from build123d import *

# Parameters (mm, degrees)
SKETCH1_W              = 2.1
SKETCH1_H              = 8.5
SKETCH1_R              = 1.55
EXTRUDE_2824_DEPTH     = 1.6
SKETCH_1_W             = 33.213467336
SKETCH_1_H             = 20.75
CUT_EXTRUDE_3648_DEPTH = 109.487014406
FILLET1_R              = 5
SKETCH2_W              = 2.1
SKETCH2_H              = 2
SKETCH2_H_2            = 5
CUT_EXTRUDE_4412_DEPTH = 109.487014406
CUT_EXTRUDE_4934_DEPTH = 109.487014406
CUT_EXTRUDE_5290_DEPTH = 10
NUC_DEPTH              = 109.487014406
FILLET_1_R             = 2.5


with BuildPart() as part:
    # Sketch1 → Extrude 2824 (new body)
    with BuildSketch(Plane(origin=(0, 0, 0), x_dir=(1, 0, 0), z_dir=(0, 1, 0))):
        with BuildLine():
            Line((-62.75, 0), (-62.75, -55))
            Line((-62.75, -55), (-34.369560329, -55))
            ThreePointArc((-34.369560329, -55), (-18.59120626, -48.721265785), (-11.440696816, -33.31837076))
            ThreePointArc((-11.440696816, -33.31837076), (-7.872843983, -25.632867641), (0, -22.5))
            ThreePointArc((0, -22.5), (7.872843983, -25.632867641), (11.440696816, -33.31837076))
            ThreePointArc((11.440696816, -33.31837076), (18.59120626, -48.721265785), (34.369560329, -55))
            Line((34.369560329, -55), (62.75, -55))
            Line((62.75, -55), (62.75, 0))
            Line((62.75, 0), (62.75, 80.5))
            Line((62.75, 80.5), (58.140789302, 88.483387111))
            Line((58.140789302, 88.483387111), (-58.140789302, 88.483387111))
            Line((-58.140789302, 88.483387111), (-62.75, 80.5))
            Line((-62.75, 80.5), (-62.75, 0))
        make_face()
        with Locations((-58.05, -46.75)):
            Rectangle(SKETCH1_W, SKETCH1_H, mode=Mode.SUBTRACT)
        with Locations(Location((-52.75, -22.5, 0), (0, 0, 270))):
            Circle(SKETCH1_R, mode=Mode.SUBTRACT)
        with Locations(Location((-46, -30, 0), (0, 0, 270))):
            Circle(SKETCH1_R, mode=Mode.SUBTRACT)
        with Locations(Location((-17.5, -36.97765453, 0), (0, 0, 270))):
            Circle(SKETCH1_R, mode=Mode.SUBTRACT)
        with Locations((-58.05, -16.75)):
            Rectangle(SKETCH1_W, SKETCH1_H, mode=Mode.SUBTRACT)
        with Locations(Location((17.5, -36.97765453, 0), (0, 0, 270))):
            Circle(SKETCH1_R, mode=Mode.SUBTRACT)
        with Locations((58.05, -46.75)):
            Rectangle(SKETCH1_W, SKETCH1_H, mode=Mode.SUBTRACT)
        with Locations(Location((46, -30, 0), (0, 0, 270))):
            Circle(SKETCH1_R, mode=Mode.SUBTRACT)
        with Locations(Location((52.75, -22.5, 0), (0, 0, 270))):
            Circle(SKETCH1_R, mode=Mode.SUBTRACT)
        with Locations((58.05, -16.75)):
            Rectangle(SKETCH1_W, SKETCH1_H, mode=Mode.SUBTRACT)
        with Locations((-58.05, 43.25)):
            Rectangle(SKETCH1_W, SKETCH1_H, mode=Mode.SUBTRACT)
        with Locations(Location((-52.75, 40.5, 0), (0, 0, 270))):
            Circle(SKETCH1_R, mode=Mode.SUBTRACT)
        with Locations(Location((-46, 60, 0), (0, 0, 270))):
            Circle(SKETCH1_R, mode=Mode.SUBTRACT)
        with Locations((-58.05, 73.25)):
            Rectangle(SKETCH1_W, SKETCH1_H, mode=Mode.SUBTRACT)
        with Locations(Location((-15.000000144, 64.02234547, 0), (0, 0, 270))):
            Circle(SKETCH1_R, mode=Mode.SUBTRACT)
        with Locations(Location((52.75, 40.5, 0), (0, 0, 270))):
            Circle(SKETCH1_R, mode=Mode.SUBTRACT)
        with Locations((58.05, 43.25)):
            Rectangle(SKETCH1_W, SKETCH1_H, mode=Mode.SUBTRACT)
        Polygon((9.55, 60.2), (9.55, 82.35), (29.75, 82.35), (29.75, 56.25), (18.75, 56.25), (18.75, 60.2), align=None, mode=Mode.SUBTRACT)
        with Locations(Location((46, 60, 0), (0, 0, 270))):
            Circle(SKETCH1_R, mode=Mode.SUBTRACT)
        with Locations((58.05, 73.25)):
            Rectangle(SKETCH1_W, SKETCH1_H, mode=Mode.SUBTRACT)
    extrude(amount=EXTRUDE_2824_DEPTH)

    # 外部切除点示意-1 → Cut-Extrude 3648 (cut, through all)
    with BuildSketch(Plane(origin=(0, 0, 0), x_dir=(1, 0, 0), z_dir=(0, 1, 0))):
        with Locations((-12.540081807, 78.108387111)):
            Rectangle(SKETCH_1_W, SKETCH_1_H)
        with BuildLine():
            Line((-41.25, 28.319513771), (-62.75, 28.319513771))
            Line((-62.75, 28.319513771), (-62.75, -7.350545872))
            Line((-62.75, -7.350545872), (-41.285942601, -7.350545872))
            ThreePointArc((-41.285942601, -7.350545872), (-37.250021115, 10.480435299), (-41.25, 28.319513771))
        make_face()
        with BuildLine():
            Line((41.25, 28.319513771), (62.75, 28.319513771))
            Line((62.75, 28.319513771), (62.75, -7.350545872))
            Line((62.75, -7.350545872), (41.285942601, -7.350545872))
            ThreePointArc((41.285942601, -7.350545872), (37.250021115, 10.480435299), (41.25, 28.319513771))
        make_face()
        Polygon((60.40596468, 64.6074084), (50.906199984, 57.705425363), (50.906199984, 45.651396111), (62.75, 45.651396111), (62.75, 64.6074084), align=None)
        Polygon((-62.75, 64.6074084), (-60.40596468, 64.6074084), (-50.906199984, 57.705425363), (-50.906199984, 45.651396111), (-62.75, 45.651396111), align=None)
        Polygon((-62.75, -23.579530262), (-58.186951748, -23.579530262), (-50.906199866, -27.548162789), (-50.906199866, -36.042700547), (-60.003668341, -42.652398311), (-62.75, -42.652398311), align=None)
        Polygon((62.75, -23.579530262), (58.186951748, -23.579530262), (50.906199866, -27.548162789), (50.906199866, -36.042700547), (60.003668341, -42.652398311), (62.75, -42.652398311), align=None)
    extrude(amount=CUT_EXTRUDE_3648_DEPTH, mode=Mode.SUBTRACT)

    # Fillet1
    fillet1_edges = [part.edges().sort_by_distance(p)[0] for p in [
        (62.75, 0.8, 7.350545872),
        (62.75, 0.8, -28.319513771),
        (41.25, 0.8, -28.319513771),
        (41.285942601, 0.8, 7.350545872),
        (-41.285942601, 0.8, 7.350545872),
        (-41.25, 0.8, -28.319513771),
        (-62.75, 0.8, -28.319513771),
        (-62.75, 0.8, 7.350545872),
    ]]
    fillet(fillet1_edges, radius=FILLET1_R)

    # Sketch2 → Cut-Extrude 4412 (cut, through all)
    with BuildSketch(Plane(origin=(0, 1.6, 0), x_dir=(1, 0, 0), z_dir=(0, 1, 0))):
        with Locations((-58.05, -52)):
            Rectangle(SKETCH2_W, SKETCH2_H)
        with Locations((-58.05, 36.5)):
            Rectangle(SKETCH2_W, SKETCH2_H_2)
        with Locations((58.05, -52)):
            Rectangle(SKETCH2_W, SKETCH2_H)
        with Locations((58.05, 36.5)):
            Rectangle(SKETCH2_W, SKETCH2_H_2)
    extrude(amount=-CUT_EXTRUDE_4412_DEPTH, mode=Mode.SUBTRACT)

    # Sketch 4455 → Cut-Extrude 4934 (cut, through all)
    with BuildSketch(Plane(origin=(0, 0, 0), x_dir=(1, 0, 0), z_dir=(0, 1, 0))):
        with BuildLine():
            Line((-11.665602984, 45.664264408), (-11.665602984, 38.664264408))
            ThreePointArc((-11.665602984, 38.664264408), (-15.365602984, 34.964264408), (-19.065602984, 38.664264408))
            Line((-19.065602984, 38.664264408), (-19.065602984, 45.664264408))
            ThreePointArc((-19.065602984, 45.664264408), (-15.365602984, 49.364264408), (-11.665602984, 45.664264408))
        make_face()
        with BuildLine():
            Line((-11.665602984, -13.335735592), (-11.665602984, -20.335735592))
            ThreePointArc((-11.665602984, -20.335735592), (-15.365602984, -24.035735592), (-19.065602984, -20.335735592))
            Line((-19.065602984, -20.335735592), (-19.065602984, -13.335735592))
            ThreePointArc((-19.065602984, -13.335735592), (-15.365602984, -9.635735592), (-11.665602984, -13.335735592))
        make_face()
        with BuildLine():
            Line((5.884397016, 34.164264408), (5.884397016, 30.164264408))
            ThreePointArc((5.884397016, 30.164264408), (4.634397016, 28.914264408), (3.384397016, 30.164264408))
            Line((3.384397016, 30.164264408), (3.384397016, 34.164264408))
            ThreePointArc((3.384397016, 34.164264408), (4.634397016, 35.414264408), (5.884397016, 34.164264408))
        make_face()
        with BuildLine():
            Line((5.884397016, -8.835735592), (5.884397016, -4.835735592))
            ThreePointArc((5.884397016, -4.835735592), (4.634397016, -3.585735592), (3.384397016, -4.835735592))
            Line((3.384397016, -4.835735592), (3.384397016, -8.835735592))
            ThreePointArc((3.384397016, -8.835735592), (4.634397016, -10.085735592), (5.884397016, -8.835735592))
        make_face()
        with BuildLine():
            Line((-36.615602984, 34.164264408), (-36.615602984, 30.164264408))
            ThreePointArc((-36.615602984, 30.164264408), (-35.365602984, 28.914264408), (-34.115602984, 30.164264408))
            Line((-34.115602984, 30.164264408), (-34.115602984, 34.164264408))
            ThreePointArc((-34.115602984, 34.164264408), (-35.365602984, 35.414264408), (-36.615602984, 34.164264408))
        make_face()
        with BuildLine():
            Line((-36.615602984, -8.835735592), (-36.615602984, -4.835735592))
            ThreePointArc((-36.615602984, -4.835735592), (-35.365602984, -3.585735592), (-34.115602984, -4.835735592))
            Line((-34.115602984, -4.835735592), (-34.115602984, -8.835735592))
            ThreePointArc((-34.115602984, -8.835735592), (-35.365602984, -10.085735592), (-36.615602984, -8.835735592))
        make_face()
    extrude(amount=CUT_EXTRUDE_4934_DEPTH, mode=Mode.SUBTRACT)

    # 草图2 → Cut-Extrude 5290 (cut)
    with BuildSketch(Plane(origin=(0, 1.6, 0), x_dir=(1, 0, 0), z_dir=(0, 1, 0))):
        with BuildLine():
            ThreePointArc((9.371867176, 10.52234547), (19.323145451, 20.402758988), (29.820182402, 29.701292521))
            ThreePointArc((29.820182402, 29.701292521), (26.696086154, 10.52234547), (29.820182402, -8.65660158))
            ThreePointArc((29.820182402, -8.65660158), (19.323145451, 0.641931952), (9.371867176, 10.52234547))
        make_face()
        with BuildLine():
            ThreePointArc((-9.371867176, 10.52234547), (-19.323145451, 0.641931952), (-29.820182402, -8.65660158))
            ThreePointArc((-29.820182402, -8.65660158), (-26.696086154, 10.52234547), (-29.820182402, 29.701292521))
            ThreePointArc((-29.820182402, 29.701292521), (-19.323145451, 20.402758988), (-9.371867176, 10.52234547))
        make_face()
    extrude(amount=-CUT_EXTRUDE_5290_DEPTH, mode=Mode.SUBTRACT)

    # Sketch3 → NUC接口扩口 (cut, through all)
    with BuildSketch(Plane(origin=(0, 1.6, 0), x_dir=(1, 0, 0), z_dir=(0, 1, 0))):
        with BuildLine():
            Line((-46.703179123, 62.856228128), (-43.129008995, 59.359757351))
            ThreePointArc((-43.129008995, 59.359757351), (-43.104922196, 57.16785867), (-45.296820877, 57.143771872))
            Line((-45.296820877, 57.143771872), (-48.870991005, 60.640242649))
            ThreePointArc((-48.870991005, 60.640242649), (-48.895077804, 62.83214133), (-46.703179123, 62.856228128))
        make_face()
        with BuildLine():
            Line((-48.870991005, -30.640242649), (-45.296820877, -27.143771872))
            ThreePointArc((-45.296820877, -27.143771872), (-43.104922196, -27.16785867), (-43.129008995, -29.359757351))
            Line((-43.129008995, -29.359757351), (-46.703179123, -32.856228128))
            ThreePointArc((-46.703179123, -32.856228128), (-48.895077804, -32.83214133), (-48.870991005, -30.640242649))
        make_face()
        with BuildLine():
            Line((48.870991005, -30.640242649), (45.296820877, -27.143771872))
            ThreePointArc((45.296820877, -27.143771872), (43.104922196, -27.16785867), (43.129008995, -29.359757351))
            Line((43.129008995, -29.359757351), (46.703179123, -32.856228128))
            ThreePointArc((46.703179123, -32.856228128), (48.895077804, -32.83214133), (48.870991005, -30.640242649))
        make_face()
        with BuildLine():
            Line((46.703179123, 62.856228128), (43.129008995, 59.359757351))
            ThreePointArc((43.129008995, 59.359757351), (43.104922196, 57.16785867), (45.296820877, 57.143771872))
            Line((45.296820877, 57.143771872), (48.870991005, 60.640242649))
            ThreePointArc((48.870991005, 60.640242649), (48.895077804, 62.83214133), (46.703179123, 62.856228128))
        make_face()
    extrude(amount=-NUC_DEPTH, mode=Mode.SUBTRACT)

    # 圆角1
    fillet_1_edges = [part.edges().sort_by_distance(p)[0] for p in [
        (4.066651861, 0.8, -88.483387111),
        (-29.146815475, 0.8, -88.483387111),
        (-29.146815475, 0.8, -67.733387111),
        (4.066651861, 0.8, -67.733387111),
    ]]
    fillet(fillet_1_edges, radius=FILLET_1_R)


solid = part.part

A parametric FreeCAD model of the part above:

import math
import FreeCAD as App
import Part
import Sketcher
from FreeCAD import Vector
Q = App.Units.Quantity


def edges_at(feature, points):
    """Names of the edges that pass closest to the given points."""
    edges = feature.Shape.Edges
    near = lambda p: min(range(len(edges)), key=lambda i: edges[i].distToShape(Part.Vertex(*p))[0])
    return sorted({f"Edge{near(p) + 1}" for p in points})

doc = App.newDocument("Part")
params = doc.addObject("Spreadsheet::Sheet", "Params")
for row, (alias, value) in enumerate([
    ("sketch1_diameter", "3.1 mm"),
    ("sketch1_width", "11 mm"),
    ("sketch1_width2", "2.1 mm"),
    ("sketch1_width3", "9.2 mm"),
    ("sketch1_height", "135.5 mm"),
    ("pad1_length", "1.6 mm"),
    ("sketch2_width", "21.5 mm"),
    ("sketch2_height", "20.75 mm"),
    ("fillet_radius", "5 mm"),
    ("sketch3_height", "2 mm"),
    ("sketch3_height2", "5 mm"),
    ("sketch3_width", "2.1 mm"),
    ("sketch4_radius", "3.7 mm"),
    ("sketch4_height", "7 mm"),
    ("sketch4_height2", "4 mm"),
    ("sketch4_radius2", "1.25 mm"),
    ("pocket4_length", "10 mm"),
    ("sketch6_radius", "1.55 mm"),
    ("sketch6_length", "5 mm"),
    ("fillet2_radius", "2.5 mm"),
], start=1):
    params.set(f"A{row}", alias)
    params.set(f"B{row}", "=" + value)
    params.setAlias(f"B{row}", alias)

body = doc.addObject("PartDesign::Body", "Body")

# Sketch on XZ plane
sketch1 = body.newObject("Sketcher::SketchObject", "Sketch")
sketch1.AttachmentSupport = (doc.getObject("XZ_Plane"), [""])
sketch1.MapMode = "FlatFace"
sketch1.addGeometry([
    Part.LineSegment(Vector(-62.8, 55, 0), Vector(-34.4, 55, 0)),  # 0
    Part.ArcOfCircle(Part.Circle(Vector(-34.4, 32, 0), Vector(0, 0, 1), 23), math.radians(3), math.radians(90)),  # 1
    Part.ArcOfCircle(Part.Circle(Vector(0, 34, 0), Vector(0, 0, 1), 11.5), math.radians(-177), math.radians(-90)),  # 2
    Part.ArcOfCircle(Part.Circle(Vector(0, 34, 0), Vector(0, 0, 1), 11.5), math.radians(-90), math.radians(-3)),  # 3
    Part.ArcOfCircle(Part.Circle(Vector(34.4, 32, 0), Vector(0, 0, 1), 23), math.radians(90), math.radians(177)),  # 4
    Part.LineSegment(Vector(34.4, 55, 0), Vector(62.8, 55, 0)),  # 5
    Part.LineSegment(Vector(62.8, 55, 0), Vector(62.8, -80.5, 0)),  # 6
    Part.LineSegment(Vector(62.8, -80.5, 0), Vector(58.1, -88.5, 0)),  # 7
    Part.LineSegment(Vector(58.1, -88.5, 0), Vector(-58.1, -88.5, 0)),  # 8
    Part.LineSegment(Vector(-58.1, -88.5, 0), Vector(-62.8, -80.5, 0)),  # 9
    Part.LineSegment(Vector(-62.8, -80.5, 0), Vector(-62.8, 55, 0)),  # 10
    Part.LineSegment(Vector(-57, 51, 0), Vector(-59.1, 51, 0)),  # 11
    Part.LineSegment(Vector(-59.1, 51, 0), Vector(-59.1, 42.5, 0)),  # 12
    Part.LineSegment(Vector(-59.1, 42.5, 0), Vector(-57, 42.5, 0)),  # 13
    Part.LineSegment(Vector(-57, 42.5, 0), Vector(-57, 51, 0)),  # 14
    Part.Circle(Vector(-46, 30, 0), Vector(0, 0, 1), 1.6),  # 15
    Part.Circle(Vector(-52.8, 22.5, 0), Vector(0, 0, 1), 1.6),  # 16
    Part.Circle(Vector(-17.5, 37, 0), Vector(0, 0, 1), 1.6),  # 17
    Part.LineSegment(Vector(-57, 21, 0), Vector(-59.1, 21, 0)),  # 18
    Part.LineSegment(Vector(-59.1, 21, 0), Vector(-59.1, 12.5, 0)),  # 19
    Part.LineSegment(Vector(-59.1, 12.5, 0), Vector(-57, 12.5, 0)),  # 20
    Part.LineSegment(Vector(-57, 12.5, 0), Vector(-57, 21, 0)),  # 21
    Part.Circle(Vector(17.5, 37, 0), Vector(0, 0, 1), 1.6),  # 22
    Part.LineSegment(Vector(59.1, 51, 0), Vector(57, 51, 0)),  # 23
    Part.LineSegment(Vector(57, 51, 0), Vector(57, 42.5, 0)),  # 24
    Part.LineSegment(Vector(57, 42.5, 0), Vector(59.1, 42.5, 0)),  # 25
    Part.LineSegment(Vector(59.1, 42.5, 0), Vector(59.1, 51, 0)),  # 26
    Part.Circle(Vector(46, 30, 0), Vector(0, 0, 1), 1.6),  # 27
    Part.Circle(Vector(52.8, 22.5, 0), Vector(0, 0, 1), 1.6),  # 28
    Part.LineSegment(Vector(59.1, 21, 0), Vector(57, 21, 0)),  # 29
    Part.LineSegment(Vector(57, 21, 0), Vector(57, 12.5, 0)),  # 30
    Part.LineSegment(Vector(57, 12.5, 0), Vector(59.1, 12.5, 0)),  # 31
    Part.LineSegment(Vector(59.1, 12.5, 0), Vector(59.1, 21, 0)),  # 32
    Part.Circle(Vector(-52.8, -40.5, 0), Vector(0, 0, 1), 1.6),  # 33
    Part.LineSegment(Vector(-57, -39, 0), Vector(-59.1, -39, 0)),  # 34
    Part.LineSegment(Vector(-59.1, -39, 0), Vector(-59.1, -47.5, 0)),  # 35
    Part.LineSegment(Vector(-59.1, -47.5, 0), Vector(-57, -47.5, 0)),  # 36
    Part.LineSegment(Vector(-57, -47.5, 0), Vector(-57, -39, 0)),  # 37
    Part.Circle(Vector(-46, -60, 0), Vector(0, 0, 1), 1.6),  # 38
    Part.LineSegment(Vector(-57, -69, 0), Vector(-59.1, -69, 0)),  # 39
    Part.LineSegment(Vector(-59.1, -69, 0), Vector(-59.1, -77.5, 0)),  # 40
    Part.LineSegment(Vector(-59.1, -77.5, 0), Vector(-57, -77.5, 0)),  # 41
    Part.LineSegment(Vector(-57, -77.5, 0), Vector(-57, -69, 0)),  # 42
    Part.Circle(Vector(-15, -64, 0), Vector(0, 0, 1), 1.6),  # 43
    Part.Circle(Vector(52.8, -40.5, 0), Vector(0, 0, 1), 1.6),  # 44
    Part.LineSegment(Vector(59.1, -39, 0), Vector(57, -39, 0)),  # 45
    Part.LineSegment(Vector(57, -39, 0), Vector(57, -47.5, 0)),  # 46
    Part.LineSegment(Vector(57, -47.5, 0), Vector(59.1, -47.5, 0)),  # 47
    Part.LineSegment(Vector(59.1, -47.5, 0), Vector(59.1, -39, 0)),  # 48
    Part.LineSegment(Vector(18.8, -60.2, 0), Vector(9.6, -60.2, 0)),  # 49
    Part.LineSegment(Vector(9.6, -60.2, 0), Vector(9.6, -82.3, 0)),  # 50
    Part.LineSegment(Vector(9.6, -82.3, 0), Vector(29.8, -82.3, 0)),  # 51
    Part.LineSegment(Vector(29.8, -82.3, 0), Vector(29.8, -56.2, 0)),  # 52
    Part.LineSegment(Vector(29.8, -56.2, 0), Vector(18.8, -56.2, 0)),  # 53
    Part.LineSegment(Vector(18.8, -56.2, 0), Vector(18.8, -60.2, 0)),  # 54
    Part.Circle(Vector(46, -60, 0), Vector(0, 0, 1), 1.6),  # 55
    Part.LineSegment(Vector(59.1, -69, 0), Vector(57, -69, 0)),  # 56
    Part.LineSegment(Vector(57, -69, 0), Vector(57, -77.5, 0)),  # 57
    Part.LineSegment(Vector(57, -77.5, 0), Vector(59.1, -77.5, 0)),  # 58
    Part.LineSegment(Vector(59.1, -77.5, 0), Vector(59.1, -69, 0)),  # 59
], False)
sketch1.addConstraint([
    Sketcher.Constraint("Tangent", 0, 2, 1, 2),
    Sketcher.Constraint("Tangent", 1, 1, 2, 1),
    Sketcher.Constraint("Tangent", 2, 2, 3, 1),
    Sketcher.Constraint("Tangent", 3, 2, 4, 2),
    Sketcher.Constraint("Tangent", 4, 1, 5, 1),
    Sketcher.Constraint("Coincident", 5, 2, 6, 1),
    Sketcher.Constraint("Coincident", 6, 2, 7, 1),
    Sketcher.Constraint("Coincident", 7, 2, 8, 1),
    Sketcher.Constraint("Coincident", 8, 2, 9, 1),
    Sketcher.Constraint("Coincident", 9, 2, 10, 1),
    Sketcher.Constraint("Coincident", 10, 2, 0, 1),
    Sketcher.Constraint("Coincident", 11, 2, 12, 1),
    Sketcher.Constraint("Coincident", 12, 2, 13, 1),
    Sketcher.Constraint("Coincident", 13, 2, 14, 1),
    Sketcher.Constraint("Coincident", 14, 2, 11, 1),
    Sketcher.Constraint("Coincident", 18, 2, 19, 1),
    Sketcher.Constraint("Coincident", 19, 2, 20, 1),
    Sketcher.Constraint("Coincident", 20, 2, 21, 1),
    Sketcher.Constraint("Coincident", 21, 2, 18, 1),
    Sketcher.Constraint("Coincident", 23, 2, 24, 1),
    Sketcher.Constraint("Coincident", 24, 2, 25, 1),
    Sketcher.Constraint("Coincident", 25, 2, 26, 1),
    Sketcher.Constraint("Coincident", 26, 2, 23, 1),
    Sketcher.Constraint("Coincident", 29, 2, 30, 1),
    Sketcher.Constraint("Coincident", 30, 2, 31, 1),
    Sketcher.Constraint("Coincident", 31, 2, 32, 1),
    Sketcher.Constraint("Coincident", 32, 2, 29, 1),
    Sketcher.Constraint("Coincident", 34, 2, 35, 1),
    Sketcher.Constraint("Coincident", 35, 2, 36, 1),
    Sketcher.Constraint("Coincident", 36, 2, 37, 1),
    Sketcher.Constraint("Coincident", 37, 2, 34, 1),
    Sketcher.Constraint("Coincident", 39, 2, 40, 1),
    Sketcher.Constraint("Coincident", 40, 2, 41, 1),
    Sketcher.Constraint("Coincident", 41, 2, 42, 1),
    Sketcher.Constraint("Coincident", 42, 2, 39, 1),
    Sketcher.Constraint("Coincident", 45, 2, 46, 1),
    Sketcher.Constraint("Coincident", 46, 2, 47, 1),
    Sketcher.Constraint("Coincident", 47, 2, 48, 1),
    Sketcher.Constraint("Coincident", 48, 2, 45, 1),
    Sketcher.Constraint("Coincident", 49, 2, 50, 1),
    Sketcher.Constraint("Coincident", 50, 2, 51, 1),
    Sketcher.Constraint("Coincident", 51, 2, 52, 1),
    Sketcher.Constraint("Coincident", 52, 2, 53, 1),
    Sketcher.Constraint("Coincident", 53, 2, 54, 1),
    Sketcher.Constraint("Coincident", 54, 2, 49, 1),
    Sketcher.Constraint("Coincident", 56, 2, 57, 1),
    Sketcher.Constraint("Coincident", 57, 2, 58, 1),
    Sketcher.Constraint("Coincident", 58, 2, 59, 1),
    Sketcher.Constraint("Coincident", 59, 2, 56, 1),
    Sketcher.Constraint("Horizontal", 0),
    Sketcher.Constraint("Horizontal", 5),
    Sketcher.Constraint("Vertical", 6),
    Sketcher.Constraint("Horizontal", 8),
    Sketcher.Constraint("Vertical", 10),
    Sketcher.Constraint("Horizontal", 11),
    Sketcher.Constraint("Vertical", 12),
    Sketcher.Constraint("Horizontal", 13),
    Sketcher.Constraint("Vertical", 14),
    Sketcher.Constraint("Horizontal", 18),
    Sketcher.Constraint("Vertical", 19),
    Sketcher.Constraint("Horizontal", 20),
    Sketcher.Constraint("Vertical", 21),
    Sketcher.Constraint("Horizontal", 23),
    Sketcher.Constraint("Vertical", 24),
    Sketcher.Constraint("Horizontal", 25),
    Sketcher.Constraint("Vertical", 26),
    Sketcher.Constraint("Horizontal", 29),
    Sketcher.Constraint("Vertical", 30),
    Sketcher.Constraint("Horizontal", 31),
    Sketcher.Constraint("Vertical", 32),
    Sketcher.Constraint("Horizontal", 34),
    Sketcher.Constraint("Vertical", 35),
    Sketcher.Constraint("Horizontal", 36),
    Sketcher.Constraint("Vertical", 37),
    Sketcher.Constraint("Horizontal", 39),
    Sketcher.Constraint("Vertical", 40),
    Sketcher.Constraint("Horizontal", 41),
    Sketcher.Constraint("Vertical", 42),
    Sketcher.Constraint("Horizontal", 45),
    Sketcher.Constraint("Vertical", 46),
    Sketcher.Constraint("Horizontal", 47),
    Sketcher.Constraint("Vertical", 48),
    Sketcher.Constraint("Horizontal", 49),
    Sketcher.Constraint("Vertical", 50),
    Sketcher.Constraint("Horizontal", 51),
    Sketcher.Constraint("Vertical", 52),
    Sketcher.Constraint("Horizontal", 53),
    Sketcher.Constraint("Vertical", 54),
    Sketcher.Constraint("Horizontal", 56),
    Sketcher.Constraint("Vertical", 57),
    Sketcher.Constraint("Horizontal", 58),
    Sketcher.Constraint("Vertical", 59),
    Sketcher.Constraint("Equal", 2, 3),
    Sketcher.Constraint("Equal", 1, 4),
    Sketcher.Constraint("Equal", 15, 16),
    Sketcher.Constraint("Equal", 16, 17),
    Sketcher.Constraint("Equal", 17, 22),
    Sketcher.Constraint("Equal", 22, 27),
    Sketcher.Constraint("Equal", 27, 28),
    Sketcher.Constraint("Equal", 28, 33),
    Sketcher.Constraint("Equal", 33, 38),
    Sketcher.Constraint("Equal", 38, 43),
    Sketcher.Constraint("Equal", 43, 44),
    Sketcher.Constraint("Equal", 44, 55),
    Sketcher.Constraint("Symmetric", 1, 3, 4, 3, -2),
    Sketcher.Constraint("Symmetric", 17, 3, 22, 3, -2),
    Sketcher.Constraint("Symmetric", 15, 3, 27, 3, -2),
    Sketcher.Constraint("Symmetric", 16, 3, 28, 3, -2),
    Sketcher.Constraint("Symmetric", 33, 3, 44, 3, -2),
    Sketcher.Constraint("Symmetric", 38, 3, 55, 3, -2),
    Sketcher.Constraint("Symmetric", 6, 2, 9, 2, -2),
    Sketcher.Constraint("Symmetric", 14, 2, 23, 2, -2),
    Sketcher.Constraint("Symmetric", 12, 2, 25, 2, -2),
    Sketcher.Constraint("Symmetric", 21, 2, 29, 2, -2),
    Sketcher.Constraint("Symmetric", 19, 2, 31, 2, -2),
    Sketcher.Constraint("Symmetric", 37, 2, 45, 2, -2),
    Sketcher.Constraint("Symmetric", 35, 2, 47, 2, -2),
    Sketcher.Constraint("Symmetric", 42, 2, 56, 2, -2),
    Sketcher.Constraint("Symmetric", 40, 2, 58, 2, -2),
    Sketcher.Constraint("PointOnObject", 2, 2, -2),
    Sketcher.Constraint("Horizontal", 28, 3, 2, 2),
    Sketcher.Constraint("Vertical", 16, 3, 33, 3),
    Sketcher.Constraint("Vertical", 15, 3, 38, 3),
    Sketcher.Constraint("Vertical", 12, 2, 18, 2),
    Sketcher.Constraint("Vertical", 14, 2, 20, 2),
    Sketcher.Constraint("Vertical", 19, 2, 34, 2),
    Sketcher.Constraint("Vertical", 21, 2, 36, 2),
    Sketcher.Constraint("Vertical", 35, 2, 39, 2),
    Sketcher.Constraint("Vertical", 37, 2, 41, 2),
    Sketcher.Constraint("Equal", 14, 19),
    Sketcher.Constraint("Equal", 32, 35),
    Sketcher.Constraint("Equal", 37, 40),
    Sketcher.Constraint("Equal", 7, 9),
    Sketcher.Constraint("Diameter", 15, Q("3.1 mm")),
    Sketcher.Constraint("DistanceX", 53, 2, 53, 1, Q("11 mm")),
    Sketcher.Constraint("Angle", 7, Q("-120 deg")),
    Sketcher.Constraint("DistanceX", 11, 2, 11, 1, Q("2.1 mm")),
    Sketcher.Constraint("DistanceX", 49, 2, 49, 1, Q("9.2 mm")),
    Sketcher.Constraint("DistanceY", 6, 2, 6, 1, Q("135.5 mm")),
    Sketcher.Constraint("DistanceY", 12, 2, 12, 1, Q("8.5 mm")),
    Sketcher.Constraint("DistanceY", 52, 1, 52, 2, Q("26.1 mm")),
    Sketcher.Constraint("DistanceX", 15, 3, -1, 1, Q("46 mm")),
    Sketcher.Constraint("DistanceY", -1, 1, 15, 3, Q("30 mm")),
    Sketcher.Constraint("DistanceY", 38, 3, -1, 1, Q("60 mm")),
    Sketcher.Constraint("DistanceX", 43, 3, -1, 1, Q("15 mm")),
    Sketcher.Constraint("DistanceY", -1, 1, 0, 2, Q("55 mm")),
    Sketcher.Constraint("DistanceY", -1, 1, 11, 2, Q("51 mm")),
    Sketcher.Constraint("DistanceX", 13, 2, -1, 1, Q("57 mm")),
    Sketcher.Constraint("DistanceY", -1, 1, 18, 2, Q("21 mm")),
    Sketcher.Constraint("DistanceY", 34, 2, -1, 1, Q("39 mm")),
    Sketcher.Constraint("DistanceY", 39, 2, -1, 1, Q("69 mm")),
    Sketcher.Constraint("DistanceY", 50, 2, 50, 1, Q("22.15 mm")),
    Sketcher.Constraint("DistanceY", -1, 1, 16, 3, Q("22.5 mm")),
    Sketcher.Constraint("DistanceX", 17, 3, -1, 1, Q("17.5 mm")),
    Sketcher.Constraint("DistanceY", 33, 3, -1, 1, Q("40.5 mm")),
    Sketcher.Constraint("DistanceY", 49, 2, -1, 1, Q("60.2 mm")),
    Sketcher.Constraint("DistanceX", 16, 3, -1, 1, Q("52.75 mm")),
    Sketcher.Constraint("DistanceX", -1, 1, 5, 2, Q("62.75 mm")),
    Sketcher.Constraint("DistanceX", -1, 1, 49, 2, Q("9.55 mm")),
    Sketcher.Constraint("Radius", 1, Q("22.964737 mm")),
    Sketcher.Constraint("Radius", 2, Q("11.458596 mm")),
    Sketcher.Constraint("DistanceX", 8, 2, 8, 1, Q("116.281579 mm")),
    Sketcher.Constraint("DistanceY", -1, 1, 17, 3, Q("36.977655 mm")),
    Sketcher.Constraint("DistanceY", 43, 3, -1, 1, Q("64.022345 mm")),
])
sketch1.setExpression("Constraints[133]", "Params.sketch1_diameter")
sketch1.setExpression("Constraints[134]", "Params.sketch1_width")
sketch1.setExpression("Constraints[136]", "Params.sketch1_width2")
sketch1.setExpression("Constraints[137]", "Params.sketch1_width3")
sketch1.setExpression("Constraints[138]", "Params.sketch1_height")
pad1 = body.newObject("PartDesign::Pad", "Pad")
pad1.Profile = sketch1
pad1.setExpression("Length", "Params.pad1_length")
pad1.Reversed = True

# Sketch on XZ plane
sketch2 = body.newObject("Sketcher::SketchObject", "Sketch001")
sketch2.AttachmentSupport = (doc.getObject("XZ_Plane"), [""])
sketch2.MapMode = "FlatFace"
sketch2.addGeometry([
    Part.LineSegment(Vector(-29.1, -88.5, 0), Vector(-29.1, -67.7, 0)),  # 0
    Part.LineSegment(Vector(-29.1, -67.7, 0), Vector(4.1, -67.7, 0)),  # 1
    Part.LineSegment(Vector(4.1, -67.7, 0), Vector(4.1, -88.5, 0)),  # 2
    Part.LineSegment(Vector(4.1, -88.5, 0), Vector(-29.1, -88.5, 0)),  # 3
    Part.LineSegment(Vector(-41.2, -28.3, 0), Vector(-62.8, -28.3, 0)),  # 4
    Part.LineSegment(Vector(-62.8, -28.3, 0), Vector(-62.8, 7.4, 0)),  # 5
    Part.LineSegment(Vector(-62.8, 7.4, 0), Vector(-41.3, 7.4, 0)),  # 6
    Part.ArcOfCircle(Part.Circle(Vector(-78.8, -10.5, 0), Vector(0, 0, 1), 41.6), math.radians(-25), math.radians(25)),  # 7
    Part.LineSegment(Vector(62.8, -28.3, 0), Vector(41.2, -28.3, 0)),  # 8
    Part.ArcOfCircle(Part.Circle(Vector(78.8, -10.5, 0), Vector(0, 0, 1), 41.6), math.radians(155), math.radians(205)),  # 9
    Part.LineSegment(Vector(41.3, 7.4, 0), Vector(62.8, 7.4, 0)),  # 10
    Part.LineSegment(Vector(62.8, 7.4, 0), Vector(62.8, -28.3, 0)),  # 11
    Part.LineSegment(Vector(60.4, -64.6, 0), Vector(50.9, -57.7, 0)),  # 12
    Part.LineSegment(Vector(50.9, -57.7, 0), Vector(50.9, -45.7, 0)),  # 13
    Part.LineSegment(Vector(50.9, -45.7, 0), Vector(62.8, -45.7, 0)),  # 14
    Part.LineSegment(Vector(62.8, -45.7, 0), Vector(62.8, -64.6, 0)),  # 15
    Part.LineSegment(Vector(62.8, -64.6, 0), Vector(60.4, -64.6, 0)),  # 16
    Part.LineSegment(Vector(-60.4, -64.6, 0), Vector(-62.8, -64.6, 0)),  # 17
    Part.LineSegment(Vector(-62.8, -64.6, 0), Vector(-62.8, -45.7, 0)),  # 18
    Part.LineSegment(Vector(-62.8, -45.7, 0), Vector(-50.9, -45.7, 0)),  # 19
    Part.LineSegment(Vector(-50.9, -45.7, 0), Vector(-50.9, -57.7, 0)),  # 20
    Part.LineSegment(Vector(-50.9, -57.7, 0), Vector(-60.4, -64.6, 0)),  # 21
    Part.LineSegment(Vector(-58.2, 23.6, 0), Vector(-62.8, 23.6, 0)),  # 22
    Part.LineSegment(Vector(-62.8, 23.6, 0), Vector(-62.8, 42.7, 0)),  # 23
    Part.LineSegment(Vector(-62.8, 42.7, 0), Vector(-60, 42.7, 0)),  # 24
    Part.LineSegment(Vector(-60, 42.7, 0), Vector(-50.9, 36, 0)),  # 25
    Part.LineSegment(Vector(-50.9, 36, 0), Vector(-50.9, 27.5, 0)),  # 26
    Part.LineSegment(Vector(-50.9, 27.5, 0), Vector(-58.2, 23.6, 0)),  # 27
    Part.LineSegment(Vector(62.8, 23.6, 0), Vector(58.2, 23.6, 0)),  # 28
    Part.LineSegment(Vector(58.2, 23.6, 0), Vector(50.9, 27.5, 0)),  # 29
    Part.LineSegment(Vector(50.9, 27.5, 0), Vector(50.9, 36, 0)),  # 30
    Part.LineSegment(Vector(50.9, 36, 0), Vector(60, 42.7, 0)),  # 31
    Part.LineSegment(Vector(60, 42.7, 0), Vector(62.8, 42.7, 0)),  # 32
    Part.LineSegment(Vector(62.8, 42.7, 0), Vector(62.8, 23.6, 0)),  # 33
], False)
sketch2.addConstraint([
    Sketcher.Constraint("Coincident", 0, 2, 1, 1),
    Sketcher.Constraint("Coincident", 1, 2, 2, 1),
    Sketcher.Constraint("Coincident", 2, 2, 3, 1),
    Sketcher.Constraint("Coincident", 3, 2, 0, 1),
    Sketcher.Constraint("Coincident", 4, 2, 5, 1),
    Sketcher.Constraint("Coincident", 5, 2, 6, 1),
    Sketcher.Constraint("Coincident", 6, 2, 7, 2),
    Sketcher.Constraint("Coincident", 7, 1, 4, 1),
    Sketcher.Constraint("Coincident", 8, 2, 9, 2),
    Sketcher.Constraint("Coincident", 9, 1, 10, 1),
    Sketcher.Constraint("Coincident", 10, 2, 11, 1),
    Sketcher.Constraint("Coincident", 11, 2, 8, 1),
    Sketcher.Constraint("Coincident", 12, 2, 13, 1),
    Sketcher.Constraint("Coincident", 13, 2, 14, 1),
    Sketcher.Constraint("Coincident", 14, 2, 15, 1),
    Sketcher.Constraint("Coincident", 15, 2, 16, 1),
    Sketcher.Constraint("Coincident", 16, 2, 12, 1),
    Sketcher.Constraint("Coincident", 17, 2, 18, 1),
    Sketcher.Constraint("Coincident", 18, 2, 19, 1),
    Sketcher.Constraint("Coincident", 19, 2, 20, 1),
    Sketcher.Constraint("Coincident", 20, 2, 21, 1),
    Sketcher.Constraint("Coincident", 21, 2, 17, 1),
    Sketcher.Constraint("Coincident", 22, 2, 23, 1),
    Sketcher.Constraint("Coincident", 23, 2, 24, 1),
    Sketcher.Constraint("Coincident", 24, 2, 25, 1),
    Sketcher.Constraint("Coincident", 25, 2, 26, 1),
    Sketcher.Constraint("Coincident", 26, 2, 27, 1),
    Sketcher.Constraint("Coincident", 27, 2, 22, 1),
    Sketcher.Constraint("Coincident", 28, 2, 29, 1),
    Sketcher.Constraint("Coincident", 29, 2, 30, 1),
    Sketcher.Constraint("Coincident", 30, 2, 31, 1),
    Sketcher.Constraint("Coincident", 31, 2, 32, 1),
    Sketcher.Constraint("Coincident", 32, 2, 33, 1),
    Sketcher.Constraint("Coincident", 33, 2, 28, 1),
    Sketcher.Constraint("Vertical", 0),
    Sketcher.Constraint("Horizontal", 1),
    Sketcher.Constraint("Vertical", 2),
    Sketcher.Constraint("Horizontal", 3),
    Sketcher.Constraint("Horizontal", 4),
    Sketcher.Constraint("Vertical", 5),
    Sketcher.Constraint("Horizontal", 6),
    Sketcher.Constraint("Horizontal", 8),
    Sketcher.Constraint("Horizontal", 10),
    Sketcher.Constraint("Vertical", 11),
    Sketcher.Constraint("Vertical", 13),
    Sketcher.Constraint("Horizontal", 14),
    Sketcher.Constraint("Vertical", 15),
    Sketcher.Constraint("Horizontal", 16),
    Sketcher.Constraint("Horizontal", 17),
    Sketcher.Constraint("Vertical", 18),
    Sketcher.Constraint("Horizontal", 19),
    Sketcher.Constraint("Vertical", 20),
    Sketcher.Constraint("Horizontal", 22),
    Sketcher.Constraint("Vertical", 23),
    Sketcher.Constraint("Horizontal", 24),
    Sketcher.Constraint("Vertical", 26),
    Sketcher.Constraint("Horizontal", 28),
    Sketcher.Constraint("Vertical", 30),
    Sketcher.Constraint("Horizontal", 32),
    Sketcher.Constraint("Vertical", 33),
    Sketcher.Constraint("Equal", 7, 9),
    Sketcher.Constraint("Symmetric", 7, 3, 9, 3, -2),
    Sketcher.Constraint("Symmetric", 5, 2, 10, 2, -2),
    Sketcher.Constraint("Symmetric", 15, 2, 17, 2, -2),
    Sketcher.Constraint("Symmetric", 13, 2, 19, 2, -2),
    Sketcher.Constraint("Symmetric", 27, 2, 28, 2, -2),
    Sketcher.Constraint("Symmetric", 26, 2, 29, 2, -2),
    Sketcher.Constraint("Symmetric", 24, 2, 31, 2, -2),
    Sketcher.Constraint("Parallel", 12, 25),
    Sketcher.Constraint("Parallel", 21, 31),
    Sketcher.Constraint("Horizontal", 7, 1, 8, 2),
    Sketcher.Constraint("Horizontal", 12, 2, 20, 2),
    Sketcher.Constraint("Horizontal", 25, 2, 30, 2),
    Sketcher.Constraint("Vertical", 11, 2, 14, 2),
    Sketcher.Constraint("Vertical", 18, 2, 22, 2),
    Sketcher.Constraint("Vertical", 20, 2, 25, 2),
    Sketcher.Constraint("Vertical", 15, 2, 32, 2),
    Sketcher.Constraint("Angle", 12, Q("144 deg")),
    Sketcher.Constraint("DistanceX", 4, 2, 4, 1, Q("21.5 mm")),
    Sketcher.Constraint("DistanceY", 0, 1, 0, 2, Q("20.75 mm")),
    Sketcher.Constraint("Radius", 7, Q("41.5924 mm")),
    Sketcher.Constraint("DistanceX", 7, 1, 8, 2, Q("82.5 mm")),
    Sketcher.Constraint("DistanceX", 14, 1, 14, 2, Q("11.8438 mm")),
    Sketcher.Constraint("DistanceX", 22, 2, 22, 1, Q("4.563048 mm")),
    Sketcher.Constraint("DistanceX", 24, 1, 24, 2, Q("2.746332 mm")),
    Sketcher.Constraint("DistanceY", 5, 1, 5, 2, Q("35.67006 mm")),
    Sketcher.Constraint("DistanceY", 13, 1, 13, 2, Q("12.054029 mm")),
    Sketcher.Constraint("DistanceY", 23, 1, 23, 2, Q("19.072868 mm")),
    Sketcher.Constraint("DistanceX", 7, 3, -1, 1, Q("78.8424 mm")),
    Sketcher.Constraint("DistanceY", -1, 1, 23, 2, Q("42.652398 mm")),
    Sketcher.Constraint("Distance", 27, Q("8.292128 mm")),
    Sketcher.Constraint("DistanceX", 1, 1, 1, 2, Q("33.213467 mm")),
    Sketcher.Constraint("DistanceX", 16, 2, 16, 1, Q("2.344035 mm")),
    Sketcher.Constraint("DistanceX", -1, 1, 1, 2, Q("4.066652 mm")),
    Sketcher.Constraint("DistanceY", 15, 2, -1, 1, Q("64.607408 mm")),
    Sketcher.Constraint("DistanceY", 0, 2, 7, 3, Q("57.211042 mm")),
    Sketcher.Constraint("DistanceY", 12, 2, 8, 2, Q("29.385912 mm")),
])
sketch2.setExpression("Constraints[78]", "Params.sketch2_width")
sketch2.setExpression("Constraints[79]", "Params.sketch2_height")
pocket1 = body.newObject("PartDesign::Pocket", "Pocket")
pocket1.Profile = sketch2
pocket1.Type = "ThroughAll"
doc.recompute()

fillet = body.newObject("PartDesign::Fillet", "Fillet")
fillet.Base = (pocket1, edges_at(pocket1, [
    (62.75, 0.8, 7.351),
    (62.75, 0.8, -28.32),
    (41.25, 0.8, -28.32),
    (41.286, 0.8, 7.351),
    (-41.286, 0.8, 7.351),
    (-41.25, 0.8, -28.32),
    (-62.75, 0.8, -28.32),
    (-62.75, 0.8, 7.351),
]))
fillet.setExpression("Radius", "Params.fillet_radius")

# Sketch on XZ plane
sketch3 = body.newObject("Sketcher::SketchObject", "Sketch002")
sketch3.AttachmentSupport = (doc.getObject("XZ_Plane"), [""])
sketch3.MapMode = "FlatFace"
sketch3.AttachmentOffset = App.Placement(Vector(0, 0, -1.6), App.Rotation())
sketch3.addGeometry([
    Part.LineSegment(Vector(-59.1, 51, 0), Vector(-59.1, 53, 0)),  # 0
    Part.LineSegment(Vector(-59.1, 53, 0), Vector(-57, 53, 0)),  # 1
    Part.LineSegment(Vector(-57, 53, 0), Vector(-57, 51, 0)),  # 2
    Part.LineSegment(Vector(-57, 51, 0), Vector(-59.1, 51, 0)),  # 3
    Part.LineSegment(Vector(-59.1, -39, 0), Vector(-59.1, -34, 0)),  # 4
    Part.LineSegment(Vector(-59.1, -34, 0), Vector(-57, -34, 0)),  # 5
    Part.LineSegment(Vector(-57, -34, 0), Vector(-57, -39, 0)),  # 6
    Part.LineSegment(Vector(-57, -39, 0), Vector(-59.1, -39, 0)),  # 7
    Part.LineSegment(Vector(57, 51, 0), Vector(57, 53, 0)),  # 8
    Part.LineSegment(Vector(57, 53, 0), Vector(59.1, 53, 0)),  # 9
    Part.LineSegment(Vector(59.1, 53, 0), Vector(59.1, 51, 0)),  # 10
    Part.LineSegment(Vector(59.1, 51, 0), Vector(57, 51, 0)),  # 11
    Part.LineSegment(Vector(57, -39, 0), Vector(57, -34, 0)),  # 12
    Part.LineSegment(Vector(57, -34, 0), Vector(59.1, -34, 0)),  # 13
    Part.LineSegment(Vector(59.1, -34, 0), Vector(59.1, -39, 0)),  # 14
    Part.LineSegment(Vector(59.1, -39, 0), Vector(57, -39, 0)),  # 15
], False)
sketch3.addConstraint([
    Sketcher.Constraint("Coincident", 0, 2, 1, 1),
    Sketcher.Constraint("Coincident", 1, 2, 2, 1),
    Sketcher.Constraint("Coincident", 2, 2, 3, 1),
    Sketcher.Constraint("Coincident", 3, 2, 0, 1),
    Sketcher.Constraint("Coincident", 4, 2, 5, 1),
    Sketcher.Constraint("Coincident", 5, 2, 6, 1),
    Sketcher.Constraint("Coincident", 6, 2, 7, 1),
    Sketcher.Constraint("Coincident", 7, 2, 4, 1),
    Sketcher.Constraint("Coincident", 8, 2, 9, 1),
    Sketcher.Constraint("Coincident", 9, 2, 10, 1),
    Sketcher.Constraint("Coincident", 10, 2, 11, 1),
    Sketcher.Constraint("Coincident", 11, 2, 8, 1),
    Sketcher.Constraint("Coincident", 12, 2, 13, 1),
    Sketcher.Constraint("Coincident", 13, 2, 14, 1),
    Sketcher.Constraint("Coincident", 14, 2, 15, 1),
    Sketcher.Constraint("Coincident", 15, 2, 12, 1),
    Sketcher.Constraint("Vertical", 0),
    Sketcher.Constraint("Horizontal", 1),
    Sketcher.Constraint("Vertical", 2),
    Sketcher.Constraint("Horizontal", 3),
    Sketcher.Constraint("Vertical", 4),
    Sketcher.Constraint("Horizontal", 5),
    Sketcher.Constraint("Vertical", 6),
    Sketcher.Constraint("Horizontal", 7),
    Sketcher.Constraint("Vertical", 8),
    Sketcher.Constraint("Horizontal", 9),
    Sketcher.Constraint("Vertical", 10),
    Sketcher.Constraint("Horizontal", 11),
    Sketcher.Constraint("Vertical", 12),
    Sketcher.Constraint("Horizontal", 13),
    Sketcher.Constraint("Vertical", 14),
    Sketcher.Constraint("Horizontal", 15),
    Sketcher.Constraint("Symmetric", 1, 2, 8, 2, -2),
    Sketcher.Constraint("Symmetric", 3, 2, 10, 2, -2),
    Sketcher.Constraint("Symmetric", 5, 2, 12, 2, -2),
    Sketcher.Constraint("Symmetric", 7, 2, 14, 2, -2),
    Sketcher.Constraint("Vertical", 3, 2, 4, 2),
    Sketcher.Constraint("Vertical", 2, 2, 5, 2),
    Sketcher.Constraint("DistanceY", 0, 1, 0, 2, Q("2 mm")),
    Sketcher.Constraint("DistanceY", 4, 1, 4, 2, Q("5 mm")),
    Sketcher.Constraint("DistanceX", 1, 1, 1, 2, Q("2.1 mm")),
    Sketcher.Constraint("DistanceY", -1, 1, 0, 2, Q("53 mm")),
    Sketcher.Constraint("DistanceX", 1, 2, -1, 1, Q("57 mm")),
    Sketcher.Constraint("DistanceY", 4, 2, -1, 1, Q("34 mm")),
])
sketch3.setExpression("Constraints[38]", "Params.sketch3_height")
sketch3.setExpression("Constraints[39]", "Params.sketch3_height2")
sketch3.setExpression("Constraints[40]", "Params.sketch3_width")
pocket2 = body.newObject("PartDesign::Pocket", "Pocket001")
pocket2.Profile = sketch3
pocket2.Type = "ThroughAll"
pocket2.Reversed = True

# Sketch on XZ plane
sketch4 = body.newObject("Sketcher::SketchObject", "Sketch003")
sketch4.AttachmentSupport = (doc.getObject("XZ_Plane"), [""])
sketch4.MapMode = "FlatFace"
sketch4.addGeometry([
    Part.LineSegment(Vector(-11.7, -38.7, 0), Vector(-11.7, -45.7, 0)),  # 0
    Part.ArcOfCircle(Part.Circle(Vector(-15.4, -45.7, 0), Vector(0, 0, 1), 3.7), math.radians(180), math.radians(360)),  # 1
    Part.LineSegment(Vector(-19.1, -45.7, 0), Vector(-19.1, -38.7, 0)),  # 2
    Part.ArcOfCircle(Part.Circle(Vector(-15.4, -38.7, 0), Vector(0, 0, 1), 3.7), math.radians(0), math.radians(180)),  # 3
    Part.LineSegment(Vector(-11.7, 20.3, 0), Vector(-11.7, 13.3, 0)),  # 4
    Part.ArcOfCircle(Part.Circle(Vector(-15.4, 13.3, 0), Vector(0, 0, 1), 3.7), math.radians(180), math.radians(360)),  # 5
    Part.LineSegment(Vector(-19.1, 13.3, 0), Vector(-19.1, 20.3, 0)),  # 6
    Part.ArcOfCircle(Part.Circle(Vector(-15.4, 20.3, 0), Vector(0, 0, 1), 3.7), math.radians(0), math.radians(180)),  # 7
    Part.LineSegment(Vector(5.9, -30.2, 0), Vector(5.9, -34.2, 0)),  # 8
    Part.ArcOfCircle(Part.Circle(Vector(4.6, -34.2, 0), Vector(0, 0, 1), 1.2), math.radians(180), math.radians(360)),  # 9
    Part.LineSegment(Vector(3.4, -34.2, 0), Vector(3.4, -30.2, 0)),  # 10
    Part.ArcOfCircle(Part.Circle(Vector(4.6, -30.2, 0), Vector(0, 0, 1), 1.2), math.radians(0), math.radians(180)),  # 11
    Part.LineSegment(Vector(5.9, 8.8, 0), Vector(5.9, 4.8, 0)),  # 12
    Part.ArcOfCircle(Part.Circle(Vector(4.6, 4.8, 0), Vector(0, 0, 1), 1.2), math.radians(180), math.radians(360)),  # 13
    Part.LineSegment(Vector(3.4, 4.8, 0), Vector(3.4, 8.8, 0)),  # 14
    Part.ArcOfCircle(Part.Circle(Vector(4.6, 8.8, 0), Vector(0, 0, 1), 1.2), math.radians(0), math.radians(180)),  # 15
    Part.LineSegment(Vector(-36.6, -34.2, 0), Vector(-36.6, -30.2, 0)),  # 16
    Part.ArcOfCircle(Part.Circle(Vector(-35.4, -30.2, 0), Vector(0, 0, 1), 1.2), math.radians(0), math.radians(180)),  # 17
    Part.LineSegment(Vector(-34.1, -30.2, 0), Vector(-34.1, -34.2, 0)),  # 18
    Part.ArcOfCircle(Part.Circle(Vector(-35.4, -34.2, 0), Vector(0, 0, 1), 1.2), math.radians(180), math.radians(360)),  # 19
    Part.LineSegment(Vector(-36.6, 4.8, 0), Vector(-36.6, 8.8, 0)),  # 20
    Part.ArcOfCircle(Part.Circle(Vector(-35.4, 8.8, 0), Vector(0, 0, 1), 1.2), math.radians(0), math.radians(180)),  # 21
    Part.LineSegment(Vector(-34.1, 8.8, 0), Vector(-34.1, 4.8, 0)),  # 22
    Part.ArcOfCircle(Part.Circle(Vector(-35.4, 4.8, 0), Vector(0, 0, 1), 1.2), math.radians(180), math.radians(360)),  # 23
], False)
sketch4.addConstraint([
    Sketcher.Constraint("Tangent", 0, 2, 1, 2),
    Sketcher.Constraint("Tangent", 1, 1, 2, 1),
    Sketcher.Constraint("Tangent", 2, 2, 3, 2),
    Sketcher.Constraint("Tangent", 3, 1, 0, 1),
    Sketcher.Constraint("Tangent", 4, 2, 5, 2),
    Sketcher.Constraint("Tangent", 5, 1, 6, 1),
    Sketcher.Constraint("Tangent", 6, 2, 7, 2),
    Sketcher.Constraint("Tangent", 7, 1, 4, 1),
    Sketcher.Constraint("Tangent", 8, 2, 9, 2),
    Sketcher.Constraint("Tangent", 9, 1, 10, 1),
    Sketcher.Constraint("Tangent", 10, 2, 11, 2),
    Sketcher.Constraint("Tangent", 11, 1, 8, 1),
    Sketcher.Constraint("Tangent", 12, 2, 13, 2),
    Sketcher.Constraint("Tangent", 13, 1, 14, 1),
    Sketcher.Constraint("Tangent", 14, 2, 15, 2),
    Sketcher.Constraint("Tangent", 15, 1, 12, 1),
    Sketcher.Constraint("Tangent", 16, 2, 17, 2),
    Sketcher.Constraint("Tangent", 17, 1, 18, 1),
    Sketcher.Constraint("Tangent", 18, 2, 19, 2),
    Sketcher.Constraint("Tangent", 19, 1, 16, 1),
    Sketcher.Constraint("Tangent", 20, 2, 21, 2),
    Sketcher.Constraint("Tangent", 21, 1, 22, 1),
    Sketcher.Constraint("Tangent", 22, 2, 23, 2),
    Sketcher.Constraint("Tangent", 23, 1, 20, 1),
    Sketcher.Constraint("Vertical", 0),
    Sketcher.Constraint("Vertical", 2),
    Sketcher.Constraint("Vertical", 4),
    Sketcher.Constraint("Vertical", 6),
    Sketcher.Constraint("Vertical", 8),
    Sketcher.Constraint("Vertical", 10),
    Sketcher.Constraint("Vertical", 12),
    Sketcher.Constraint("Vertical", 14),
    Sketcher.Constraint("Vertical", 16),
    Sketcher.Constraint("Vertical", 18),
    Sketcher.Constraint("Vertical", 20),
    Sketcher.Constraint("Vertical", 22),
    Sketcher.Constraint("Equal", 3, 5),
    Sketcher.Constraint("Equal", 11, 13),
    Sketcher.Constraint("Equal", 15, 17),
    Sketcher.Constraint("Equal", 19, 21),
    Sketcher.Constraint("Horizontal", 11, 3, 17, 3),
    Sketcher.Constraint("Horizontal", 9, 3, 19, 3),
    Sketcher.Constraint("Horizontal", 15, 3, 21, 3),
    Sketcher.Constraint("Horizontal", 13, 3, 23, 3),
    Sketcher.Constraint("Vertical", 3, 3, 5, 3),
    Sketcher.Constraint("Vertical", 11, 3, 13, 3),
    Sketcher.Constraint("Vertical", 19, 3, 21, 3),
    Sketcher.Constraint("Equal", 2, 4),
    Sketcher.Constraint("Equal", 10, 12),
    Sketcher.Constraint("Radius", 1, Q("3.7 mm")),
    Sketcher.Constraint("DistanceY", 0, 2, 0, 1, Q("7 mm")),
    Sketcher.Constraint("DistanceY", 8, 2, 8, 1, Q("4 mm")),
    Sketcher.Constraint("Radius", 9, Q("1.25 mm")),
    Sketcher.Constraint("DistanceY", 3, 3, 5, 3, Q("52 mm")),
    Sketcher.Constraint("DistanceX", 3, 3, 9, 3, Q("20 mm")),
    Sketcher.Constraint("DistanceY", 11, 3, 13, 3, Q("35 mm")),
    Sketcher.Constraint("DistanceX", 17, 3, 3, 3, Q("20 mm")),
    Sketcher.Constraint("DistanceY", 3, 3, 9, 3, Q("4.5 mm")),
    Sketcher.Constraint("DistanceX", 1, 3, -1, 1, Q("15.365603 mm")),
    Sketcher.Constraint("DistanceY", 1, 3, -1, 1, Q("45.664264 mm")),
])
sketch4.setExpression("Constraints[49]", "Params.sketch4_radius")
sketch4.setExpression("Constraints[50]", "Params.sketch4_height")
sketch4.setExpression("Constraints[51]", "Params.sketch4_height2")
sketch4.setExpression("Constraints[52]", "Params.sketch4_radius2")
pocket3 = body.newObject("PartDesign::Pocket", "Pocket002")
pocket3.Profile = sketch4
pocket3.Type = "ThroughAll"

# Sketch on XZ plane
sketch5 = body.newObject("Sketcher::SketchObject", "Sketch004")
sketch5.AttachmentSupport = (doc.getObject("XZ_Plane"), [""])
sketch5.MapMode = "FlatFace"
sketch5.AttachmentOffset = App.Placement(Vector(0, 0, -1.6), App.Rotation())
sketch5.addGeometry([
    Part.ArcOfCircle(Part.Circle(Vector(188, 159, 0), Vector(0, 0, 1), 247), math.radians(-136.43), math.radians(-129.91)),  # 0
    Part.ArcOfCircle(Part.Circle(Vector(188, -180, 0), Vector(0, 0, 1), 247), math.radians(129.91), math.radians(136.43)),  # 1
    Part.ArcOfCircle(Part.Circle(Vector(87, -11, 0), Vector(0, 0, 1), 60), math.radians(161), math.radians(199)),  # 2
    Part.ArcOfCircle(Part.Circle(Vector(-188, -180, 0), Vector(0, 0, 1), 247), math.radians(43.57), math.radians(50.09)),  # 3
    Part.ArcOfCircle(Part.Circle(Vector(-188, 159, 0), Vector(0, 0, 1), 247), math.radians(-50.09), math.radians(-43.57)),  # 4
    Part.ArcOfCircle(Part.Circle(Vector(-87, -11, 0), Vector(0, 0, 1), 60), math.radians(-19), math.radians(19)),  # 5
], False)
sketch5.addConstraint([
    Sketcher.Constraint("Coincident", 0, 1, 1, 2),
    Sketcher.Constraint("Coincident", 1, 1, 2, 1),
    Sketcher.Constraint("Coincident", 2, 2, 0, 2),
    Sketcher.Constraint("Coincident", 3, 1, 4, 2),
    Sketcher.Constraint("Coincident", 4, 1, 5, 1),
    Sketcher.Constraint("Coincident", 5, 2, 3, 2),
    Sketcher.Constraint("Equal", 0, 1),
    Sketcher.Constraint("Equal", 1, 3),
    Sketcher.Constraint("Equal", 3, 4),
    Sketcher.Constraint("Equal", 2, 5),
    Sketcher.Constraint("Symmetric", 1, 3, 3, 3, -2),
    Sketcher.Constraint("Symmetric", 0, 3, 4, 3, -2),
    Sketcher.Constraint("Symmetric", 2, 3, 5, 3, -2),
    Sketcher.Constraint("Horizontal", 5, 3, 0, 1),
    Sketcher.Constraint("Vertical", 0, 3, 1, 3),
    Sketcher.Constraint("Radius", 0, Q("246.500282 mm")),
    Sketcher.Constraint("Radius", 2, Q("60.432195 mm")),
    Sketcher.Constraint("DistanceY", 1, 3, -1, 1, Q("180.435098 mm")),
    Sketcher.Constraint("DistanceY", -1, 1, 1, 1, Q("8.656602 mm")),
    Sketcher.Constraint("DistanceX", 2, 2, 2, 3, Q("57.308099 mm")),
    Sketcher.Constraint("DistanceX", -1, 1, 2, 3, Q("87.128281 mm")),
])
pocket4 = body.newObject("PartDesign::Pocket", "Pocket003")
pocket4.Profile = sketch5
pocket4.setExpression("Length", "Params.pocket4_length")
pocket4.Reversed = True

# Sketch on XZ plane
sketch6 = body.newObject("Sketcher::SketchObject", "Sketch005")
sketch6.AttachmentSupport = (doc.getObject("XZ_Plane"), [""])
sketch6.MapMode = "FlatFace"
sketch6.AttachmentOffset = App.Placement(Vector(0, 0, -1.6), App.Rotation())
sketch6.addGeometry([
    Part.LineSegment(Vector(-43.1, -59.4, 0), Vector(-46.7, -62.9, 0)),  # 0
    Part.ArcOfCircle(Part.Circle(Vector(-47.8, -61.7, 0), Vector(0, 0, 1), 1.6), math.radians(134), math.radians(314)),  # 1
    Part.LineSegment(Vector(-48.9, -60.6, 0), Vector(-45.3, -57.1, 0)),  # 2
    Part.ArcOfCircle(Part.Circle(Vector(-44.2, -58.3, 0), Vector(0, 0, 1), 1.6), math.radians(-46), math.radians(134)),  # 3
    Part.LineSegment(Vector(-45.3, 27.1, 0), Vector(-48.9, 30.6, 0)),  # 4
    Part.ArcOfCircle(Part.Circle(Vector(-47.8, 31.7, 0), Vector(0, 0, 1), 1.6), math.radians(46), math.radians(226)),  # 5
    Part.LineSegment(Vector(-46.7, 32.9, 0), Vector(-43.1, 29.4, 0)),  # 6
    Part.ArcOfCircle(Part.Circle(Vector(-44.2, 28.3, 0), Vector(0, 0, 1), 1.6), math.radians(-134), math.radians(46)),  # 7
    Part.LineSegment(Vector(48.9, 30.6, 0), Vector(45.3, 27.1, 0)),  # 8
    Part.ArcOfCircle(Part.Circle(Vector(44.2, 28.3, 0), Vector(0, 0, 1), 1.6), math.radians(134), math.radians(314)),  # 9
    Part.LineSegment(Vector(43.1, 29.4, 0), Vector(46.7, 32.9, 0)),  # 10
    Part.ArcOfCircle(Part.Circle(Vector(47.8, 31.7, 0), Vector(0, 0, 1), 1.6), math.radians(-46), math.radians(134)),  # 11
    Part.LineSegment(Vector(46.7, -62.9, 0), Vector(43.1, -59.4, 0)),  # 12
    Part.ArcOfCircle(Part.Circle(Vector(44.2, -58.3, 0), Vector(0, 0, 1), 1.6), math.radians(46), math.radians(226)),  # 13
    Part.LineSegment(Vector(45.3, -57.1, 0), Vector(48.9, -60.6, 0)),  # 14
    Part.ArcOfCircle(Part.Circle(Vector(47.8, -61.7, 0), Vector(0, 0, 1), 1.6), math.radians(-134), math.radians(46)),  # 15
], False)
sketch6.addConstraint([
    Sketcher.Constraint("Tangent", 0, 2, 1, 2),
    Sketcher.Constraint("Tangent", 1, 1, 2, 1),
    Sketcher.Constraint("Tangent", 2, 2, 3, 2),
    Sketcher.Constraint("Tangent", 3, 1, 0, 1),
    Sketcher.Constraint("Tangent", 4, 2, 5, 2),
    Sketcher.Constraint("Tangent", 5, 1, 6, 1),
    Sketcher.Constraint("Tangent", 6, 2, 7, 2),
    Sketcher.Constraint("Tangent", 7, 1, 4, 1),
    Sketcher.Constraint("Tangent", 8, 2, 9, 2),
    Sketcher.Constraint("Tangent", 9, 1, 10, 1),
    Sketcher.Constraint("Tangent", 10, 2, 11, 2),
    Sketcher.Constraint("Tangent", 11, 1, 8, 1),
    Sketcher.Constraint("Tangent", 12, 2, 13, 2),
    Sketcher.Constraint("Tangent", 13, 1, 14, 1),
    Sketcher.Constraint("Tangent", 14, 2, 15, 2),
    Sketcher.Constraint("Tangent", 15, 1, 12, 1),
    Sketcher.Constraint("Equal", 1, 3),
    Sketcher.Constraint("Equal", 3, 5),
    Sketcher.Constraint("Equal", 5, 7),
    Sketcher.Constraint("Equal", 7, 9),
    Sketcher.Constraint("Equal", 9, 11),
    Sketcher.Constraint("Equal", 11, 13),
    Sketcher.Constraint("Equal", 13, 15),
    Sketcher.Constraint("Symmetric", 7, 3, 9, 3, -2),
    Sketcher.Constraint("Symmetric", 5, 3, 11, 3, -2),
    Sketcher.Constraint("Symmetric", 3, 3, 13, 3, -2),
    Sketcher.Constraint("Symmetric", 1, 3, 15, 3, -2),
    Sketcher.Constraint("Parallel", 2, 8),
    Sketcher.Constraint("Vertical", 1, 3, 5, 3),
    Sketcher.Constraint("Vertical", 3, 3, 7, 3),
    Sketcher.Constraint("Radius", 1, Q("1.55 mm")),
    Sketcher.Constraint("Distance", 0, Q("5 mm")),
    Sketcher.Constraint("DistanceY", 3, 3, 5, 3, Q("90 mm")),
    Sketcher.Constraint("DistanceX", 5, 3, 9, 3, Q("92 mm")),
    Sketcher.Constraint("DistanceX", 0, 2, -1, 1, Q("46.703179 mm")),
    Sketcher.Constraint("DistanceY", 0, 2, -1, 1, Q("62.856228 mm")),
])
sketch6.setExpression("Constraints[30]", "Params.sketch6_radius")
sketch6.setExpression("Constraints[31]", "Params.sketch6_length")
pocket5 = body.newObject("PartDesign::Pocket", "Pocket004")
pocket5.Profile = sketch6
pocket5.Type = "ThroughAll"
pocket5.Reversed = True
doc.recompute()

fillet2 = body.newObject("PartDesign::Fillet", "Fillet001")
fillet2.Base = (pocket5, edges_at(pocket5, [
    (4.067, 0.8, -88.483),
    (-29.147, 0.8, -88.483),
    (-29.147, 0.8, -67.733),
    (4.067, 0.8, -67.733),
]))
fillet2.setExpression("Radius", "Params.fillet2_radius")

doc.recompute()
